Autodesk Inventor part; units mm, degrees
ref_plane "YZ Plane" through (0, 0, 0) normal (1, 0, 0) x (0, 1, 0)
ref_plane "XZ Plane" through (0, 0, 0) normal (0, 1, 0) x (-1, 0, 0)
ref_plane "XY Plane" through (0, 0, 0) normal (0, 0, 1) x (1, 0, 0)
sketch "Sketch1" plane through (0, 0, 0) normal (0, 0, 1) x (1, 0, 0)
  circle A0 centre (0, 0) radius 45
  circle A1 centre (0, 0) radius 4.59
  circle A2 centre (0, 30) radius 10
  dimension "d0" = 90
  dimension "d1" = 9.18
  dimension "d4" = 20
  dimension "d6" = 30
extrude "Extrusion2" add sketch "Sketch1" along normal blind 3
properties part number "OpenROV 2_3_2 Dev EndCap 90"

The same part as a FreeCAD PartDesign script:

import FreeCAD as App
import Part
import Sketcher

V = App.Vector
Q = App.Units.Quantity

doc = App.newDocument("Part")
params = doc.addObject("Spreadsheet::Sheet", "Params")
for row, (alias, value) in enumerate([
    ("sketch1_diameter", "90 mm"),
    ("sketch1_diameter2", "20 mm"),
    ("sketch1_diameter3", "9.18 mm"),
    ("pad1_length", "3 mm"),
], start=1):
    params.set(f"A{row}", alias)
    params.set(f"B{row}", "=" + value)
    params.setAlias(f"B{row}", alias)

body = doc.addObject("PartDesign::Body", "Body")

# Sketch on XY plane
sketch1 = body.newObject("Sketcher::SketchObject", "Sketch")
sketch1.AttachmentSupport = (doc.getObject("XY_Plane"), [""])
sketch1.MapMode = "FlatFace"
sketch1.addGeometry(Part.Circle(V(0, 0, 0), V(0, 0, 1), 45), False)
sketch1.addGeometry(Part.Circle(V(0, 0, 0), V(0, 0, 1), 4.59), False)
sketch1.addGeometry(Part.Circle(V(0, 30, 0), V(0, 0, 1), 10), False)
sketch1.addConstraint(Sketcher.Constraint("Coincident", 0, 3, -1, 1))
sketch1.addConstraint(Sketcher.Constraint("Coincident", 1, 3, -1, 1))
sketch1.addConstraint(Sketcher.Constraint("PointOnObject", 2, 3, -2))
sketch1.addConstraint(Sketcher.Constraint("Diameter", 0, Q("90 mm")))
sketch1.addConstraint(Sketcher.Constraint("Diameter", 2, Q("20 mm")))
sketch1.addConstraint(Sketcher.Constraint("Diameter", 1, Q("9.18 mm")))
sketch1.addConstraint(Sketcher.Constraint("DistanceY", -1, 1, 2, 3, Q("30 mm")))
sketch1.setExpression("Constraints[3]", "Params.sketch1_diameter")
sketch1.setExpression("Constraints[4]", "Params.sketch1_diameter2")
sketch1.setExpression("Constraints[5]", "Params.sketch1_diameter3")
pad1 = body.newObject("PartDesign::Pad", "Pad")
pad1.Profile = sketch1
pad1.setExpression("Length", "Params.pad1_length")

doc.recompute()
